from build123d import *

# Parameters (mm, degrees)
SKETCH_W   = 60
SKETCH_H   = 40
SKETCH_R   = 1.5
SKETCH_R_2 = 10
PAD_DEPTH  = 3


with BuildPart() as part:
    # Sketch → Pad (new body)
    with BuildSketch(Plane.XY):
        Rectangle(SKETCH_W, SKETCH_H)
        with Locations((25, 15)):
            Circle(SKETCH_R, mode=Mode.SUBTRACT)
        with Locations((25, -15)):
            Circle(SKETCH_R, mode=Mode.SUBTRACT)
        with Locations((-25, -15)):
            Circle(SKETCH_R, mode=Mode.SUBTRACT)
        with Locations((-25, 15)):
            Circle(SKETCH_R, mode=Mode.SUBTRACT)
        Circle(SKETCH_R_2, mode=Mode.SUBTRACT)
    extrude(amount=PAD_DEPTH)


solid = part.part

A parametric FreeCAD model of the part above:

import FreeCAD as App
import Part
import Sketcher

V = App.Vector


def add_polygon(sketch, points):
    """Adds a closed chain of lines whose ends are joined by coincident constraints."""
    first, n = sketch.GeometryCount, len(points)
    for a, b in zip(points, points[1:] + points[:1]):
        sketch.addGeometry(Part.LineSegment(App.Vector(*a, 0), App.Vector(*b, 0)), False)
    for i in range(n):
        sketch.addConstraint(Sketcher.Constraint("Coincident", first + i, 2, first + (i + 1) % n, 1))

doc = App.newDocument("Part")
body = doc.addObject("PartDesign::Body", "Body")

sketch1 = doc.addObject("Sketcher::SketchObject", "Sketch")
body.addObject(sketch1)
sketch1.AttachmentSupport = (doc.XY_Plane, [""])
sketch1.MapMode = "FlatFace"
add_polygon(sketch1, [(-30, 20), (-30, -20), (30, -20), (30, 20)])
sketch1.addGeometry(Part.Circle(V(-25, -15, 0), V(0, 0, 1), 1.5), False)
sketch1.addGeometry(Part.Circle(V(25, -15, 0), V(0, 0, 1), 1.5), False)
sketch1.addGeometry(Part.Circle(V(-25, 15, 0), V(0, 0, 1), 1.5), False)
sketch1.addGeometry(Part.Circle(V(0, 0, 0), V(0, 0, 1), 10), False)
sketch1.addGeometry(Part.Circle(V(25, 15, 0), V(0, 0, 1), 1.5), False)
sketch1.addConstraint([
    Sketcher.Constraint("Vertical", 0),
    Sketcher.Constraint("Horizontal", 1),
    Sketcher.Constraint("Vertical", 2),
    Sketcher.Constraint("Horizontal", 3),
    Sketcher.Constraint("Coincident", 7, 3, -1, 1),
    Sketcher.Constraint("Equal", 4, 5),
    Sketcher.Constraint("Equal", 5, 6),
    Sketcher.Constraint("Equal", 6, 8),
    Sketcher.Constraint("Symmetric", 5, 3, 6, 3, -1, 1),
    Sketcher.Constraint("Symmetric", 4, 3, 8, 3, -1, 1),
    Sketcher.Constraint("Symmetric", 0, 2, 2, 2, -1, 1),
    Sketcher.Constraint("Symmetric", 4, 3, 5, 3, -2),
    Sketcher.Constraint("Diameter", 4, 3.0),
    Sketcher.Constraint("Diameter", 7, 20.0),
    Sketcher.Constraint("DistanceX", 1, 1, 1, 2, 60.0),
    Sketcher.Constraint("DistanceY", 0, 2, 0, 1, 40.0),
    Sketcher.Constraint("DistanceX", 4, 3, -1, 1, 25.0),
    Sketcher.Constraint("DistanceY", 4, 3, -1, 1, 15.0),
])
pad1 = doc.addObject("PartDesign::Pad", "Pad")
body.addObject(pad1)
pad1.Profile = sketch1
pad1.Length = 3

doc.recompute()
